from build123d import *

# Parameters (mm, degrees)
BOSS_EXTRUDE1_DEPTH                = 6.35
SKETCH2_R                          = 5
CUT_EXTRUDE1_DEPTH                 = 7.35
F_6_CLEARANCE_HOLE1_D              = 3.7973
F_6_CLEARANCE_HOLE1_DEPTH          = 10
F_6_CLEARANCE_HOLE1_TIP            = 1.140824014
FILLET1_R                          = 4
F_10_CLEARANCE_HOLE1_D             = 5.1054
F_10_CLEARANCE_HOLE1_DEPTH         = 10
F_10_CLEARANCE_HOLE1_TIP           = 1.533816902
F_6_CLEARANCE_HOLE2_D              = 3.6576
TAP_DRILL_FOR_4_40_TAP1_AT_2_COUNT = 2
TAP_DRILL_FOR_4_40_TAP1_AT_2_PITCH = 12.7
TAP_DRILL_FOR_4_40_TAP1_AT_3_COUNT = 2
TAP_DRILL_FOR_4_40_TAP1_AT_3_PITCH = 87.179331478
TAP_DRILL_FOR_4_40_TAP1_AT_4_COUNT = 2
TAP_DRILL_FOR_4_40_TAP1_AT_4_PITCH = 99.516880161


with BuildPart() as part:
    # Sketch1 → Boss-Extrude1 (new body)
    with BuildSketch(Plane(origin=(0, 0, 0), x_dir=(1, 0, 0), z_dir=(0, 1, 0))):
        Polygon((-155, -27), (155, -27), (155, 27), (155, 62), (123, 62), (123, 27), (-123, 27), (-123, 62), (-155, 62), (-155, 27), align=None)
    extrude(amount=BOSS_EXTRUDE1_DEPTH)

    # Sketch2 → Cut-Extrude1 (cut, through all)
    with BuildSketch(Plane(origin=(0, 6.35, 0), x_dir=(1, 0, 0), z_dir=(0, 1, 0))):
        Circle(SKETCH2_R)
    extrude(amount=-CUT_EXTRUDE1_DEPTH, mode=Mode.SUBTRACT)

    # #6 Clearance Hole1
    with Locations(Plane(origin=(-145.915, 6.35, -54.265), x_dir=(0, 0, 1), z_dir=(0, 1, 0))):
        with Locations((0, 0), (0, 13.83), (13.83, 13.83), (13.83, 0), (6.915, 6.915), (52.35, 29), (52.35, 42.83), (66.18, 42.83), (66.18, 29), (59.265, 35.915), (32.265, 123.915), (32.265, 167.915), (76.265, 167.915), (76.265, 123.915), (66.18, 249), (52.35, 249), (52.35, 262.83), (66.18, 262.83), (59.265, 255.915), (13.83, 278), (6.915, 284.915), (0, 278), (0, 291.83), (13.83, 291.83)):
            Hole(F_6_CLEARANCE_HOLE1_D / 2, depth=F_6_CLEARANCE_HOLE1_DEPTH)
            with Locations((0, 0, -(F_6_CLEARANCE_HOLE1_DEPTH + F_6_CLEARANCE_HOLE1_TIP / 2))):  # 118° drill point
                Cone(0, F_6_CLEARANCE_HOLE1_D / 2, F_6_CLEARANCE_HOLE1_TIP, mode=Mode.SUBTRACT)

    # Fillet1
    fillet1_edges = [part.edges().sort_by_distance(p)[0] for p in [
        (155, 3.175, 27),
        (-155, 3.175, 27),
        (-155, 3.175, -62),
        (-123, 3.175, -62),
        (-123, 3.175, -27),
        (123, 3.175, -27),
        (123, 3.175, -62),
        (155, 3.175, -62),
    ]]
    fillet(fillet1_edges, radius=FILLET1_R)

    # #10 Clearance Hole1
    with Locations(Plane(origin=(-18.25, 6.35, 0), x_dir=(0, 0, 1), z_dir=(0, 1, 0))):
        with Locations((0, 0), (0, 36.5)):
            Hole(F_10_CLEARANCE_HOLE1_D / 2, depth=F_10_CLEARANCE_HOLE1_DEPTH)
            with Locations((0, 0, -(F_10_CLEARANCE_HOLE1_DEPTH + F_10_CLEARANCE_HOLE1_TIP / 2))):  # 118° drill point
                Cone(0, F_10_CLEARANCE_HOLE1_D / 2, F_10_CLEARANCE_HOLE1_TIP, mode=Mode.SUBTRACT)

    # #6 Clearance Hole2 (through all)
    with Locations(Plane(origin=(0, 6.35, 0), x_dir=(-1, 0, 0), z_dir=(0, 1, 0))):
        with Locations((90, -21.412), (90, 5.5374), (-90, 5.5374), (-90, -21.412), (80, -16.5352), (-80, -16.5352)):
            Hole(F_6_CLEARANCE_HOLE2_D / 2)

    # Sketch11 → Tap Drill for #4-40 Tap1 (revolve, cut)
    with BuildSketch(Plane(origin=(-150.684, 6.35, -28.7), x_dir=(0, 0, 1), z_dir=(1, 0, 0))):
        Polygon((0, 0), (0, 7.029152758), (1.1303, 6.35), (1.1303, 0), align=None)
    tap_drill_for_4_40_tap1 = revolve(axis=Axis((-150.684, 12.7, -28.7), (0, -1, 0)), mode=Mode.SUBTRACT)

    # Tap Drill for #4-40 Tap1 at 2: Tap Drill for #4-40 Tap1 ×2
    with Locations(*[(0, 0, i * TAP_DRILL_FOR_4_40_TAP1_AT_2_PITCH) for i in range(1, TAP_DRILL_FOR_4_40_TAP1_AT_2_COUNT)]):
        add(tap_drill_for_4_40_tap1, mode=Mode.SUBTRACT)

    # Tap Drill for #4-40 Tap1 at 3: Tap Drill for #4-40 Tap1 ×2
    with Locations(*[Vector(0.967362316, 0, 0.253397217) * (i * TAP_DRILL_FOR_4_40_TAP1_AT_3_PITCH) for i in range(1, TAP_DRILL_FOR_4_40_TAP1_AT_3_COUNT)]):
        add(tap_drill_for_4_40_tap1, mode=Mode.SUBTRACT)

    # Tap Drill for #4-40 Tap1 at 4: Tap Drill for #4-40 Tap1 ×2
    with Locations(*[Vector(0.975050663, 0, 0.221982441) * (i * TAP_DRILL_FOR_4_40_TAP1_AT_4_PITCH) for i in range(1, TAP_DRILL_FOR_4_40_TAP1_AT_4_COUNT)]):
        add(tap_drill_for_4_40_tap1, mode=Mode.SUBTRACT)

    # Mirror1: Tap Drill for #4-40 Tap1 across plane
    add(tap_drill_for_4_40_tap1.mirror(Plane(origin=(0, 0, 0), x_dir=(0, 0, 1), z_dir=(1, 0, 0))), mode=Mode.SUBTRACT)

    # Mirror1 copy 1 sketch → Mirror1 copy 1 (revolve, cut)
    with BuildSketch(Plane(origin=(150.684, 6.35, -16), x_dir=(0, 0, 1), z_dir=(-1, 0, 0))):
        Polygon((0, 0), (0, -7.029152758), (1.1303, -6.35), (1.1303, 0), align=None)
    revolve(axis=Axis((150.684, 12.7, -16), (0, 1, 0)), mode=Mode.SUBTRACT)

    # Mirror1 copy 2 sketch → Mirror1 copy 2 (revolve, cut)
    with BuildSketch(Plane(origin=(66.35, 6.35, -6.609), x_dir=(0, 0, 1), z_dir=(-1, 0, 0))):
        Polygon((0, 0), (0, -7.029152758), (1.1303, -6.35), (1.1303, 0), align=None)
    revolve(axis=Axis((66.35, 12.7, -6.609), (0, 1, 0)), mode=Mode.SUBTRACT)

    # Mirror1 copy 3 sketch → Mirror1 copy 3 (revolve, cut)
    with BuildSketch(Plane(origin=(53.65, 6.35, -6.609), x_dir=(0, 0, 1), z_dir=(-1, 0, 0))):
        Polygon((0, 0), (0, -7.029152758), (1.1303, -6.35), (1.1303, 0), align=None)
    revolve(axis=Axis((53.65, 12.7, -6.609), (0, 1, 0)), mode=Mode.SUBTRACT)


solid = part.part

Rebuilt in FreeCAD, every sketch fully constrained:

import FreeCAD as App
import Part
import Sketcher
Q = App.Units.Quantity


def edges_at(feature, points):
    """Names of the edges that pass closest to the given points."""
    edges = feature.Shape.Edges
    near = lambda p: min(range(len(edges)), key=lambda i: edges[i].distToShape(Part.Vertex(*p))[0])
    return sorted({f"Edge{near(p) + 1}" for p in points})


def add_polygon(sketch, points):
    """Adds a closed chain of lines whose ends are joined by coincident constraints."""
    first, n = sketch.GeometryCount, len(points)
    for a, b in zip(points, points[1:] + points[:1]):
        sketch.addGeometry(Part.LineSegment(App.Vector(*a, 0), App.Vector(*b, 0)), False)
    for i in range(n):
        sketch.addConstraint(Sketcher.Constraint("Coincident", first + i, 2, first + (i + 1) % n, 1))

doc = App.newDocument("Part")
body = doc.addObject("PartDesign::Body", "Body")

# Sketch on XZ plane
sketch1 = body.newObject("Sketcher::SketchObject", "Sketch")
sketch1.AttachmentSupport = (doc.getObject("XZ_Plane"), [""])
sketch1.MapMode = "FlatFace"
add_polygon(sketch1, [(-155, 27), (155, 27), (155, -62), (123, -62), (123, -27), (-123, -27), (-123, -62), (-155, -62)])  # lines 0-7
sketch1.addConstraint([
    Sketcher.Constraint("Horizontal", 0),
    Sketcher.Constraint("Vertical", 1),
    Sketcher.Constraint("Horizontal", 2),
    Sketcher.Constraint("Vertical", 3),
    Sketcher.Constraint("Horizontal", 4),
    Sketcher.Constraint("Vertical", 5),
    Sketcher.Constraint("Horizontal", 6),
    Sketcher.Constraint("Vertical", 7),
    Sketcher.Constraint("Symmetric", 2, 2, 5, 2, -2),
    Sketcher.Constraint("Equal", 2, 6),
    Sketcher.Constraint("DistanceX", 0, 1, 0, 2, 310.0),
    Sketcher.Constraint("DistanceX", 2, 2, 2, 1, 32.0),
    Sketcher.Constraint("DistanceY", 1, 2, 1, 1, 89.0),
    Sketcher.Constraint("DistanceY", 3, 1, 3, 2, 35.0),
    Sketcher.Constraint("DistanceY", -1, 1, 0, 2, 27.0),
])
pad1 = body.newObject("PartDesign::Pad", "Pad")
pad1.Profile = sketch1
pad1.Length = 6.35
pad1.Reversed = True

# Sketch on XZ plane
sketch2 = body.newObject("Sketcher::SketchObject", "Sketch001")
sketch2.AttachmentSupport = (doc.getObject("XZ_Plane"), [""])
sketch2.MapMode = "FlatFace"
sketch2.AttachmentOffset = App.Placement(App.Vector(0, 0, -6.35), App.Rotation())
sketch2.addGeometry(Part.Circle(App.Vector(0, 0, 0), App.Vector(0, 0, 1), 5), False)
sketch2.addConstraint([
    Sketcher.Constraint("Coincident", 0, 3, -1, 1),
    Sketcher.Constraint("Diameter", 0, 10.0),
])
pocket1 = body.newObject("PartDesign::Pocket", "Pocket")
pocket1.Profile = sketch2
pocket1.Type = "ThroughAll"
pocket1.Reversed = True

# Sketch on XZ plane
sketch3 = body.newObject("Sketcher::SketchObject", "Sketch002")
sketch3.AttachmentSupport = (doc.getObject("XZ_Plane"), [""])
sketch3.MapMode = "FlatFace"
sketch3.AttachmentOffset = App.Placement(App.Vector(0, 0, -6.35), App.Rotation())
sketch3.addGeometry([
    Part.Circle(App.Vector(-145.915, -54.265, 0), App.Vector(0, 0, 1), 1.89865),  # 0
    Part.Circle(App.Vector(-132.085, -54.265, 0), App.Vector(0, 0, 1), 1.89865),  # 1
    Part.Circle(App.Vector(-132.085, -40.435, 0), App.Vector(0, 0, 1), 1.89865),  # 2
    Part.Circle(App.Vector(-145.915, -40.435, 0), App.Vector(0, 0, 1), 1.89865),  # 3
    Part.Circle(App.Vector(-139, -47.35, 0), App.Vector(0, 0, 1), 1.89865),  # 4
    Part.Circle(App.Vector(-116.915, -1.915, 0), App.Vector(0, 0, 1), 1.89865),  # 5
    Part.Circle(App.Vector(-103.085, -1.915, 0), App.Vector(0, 0, 1), 1.89865),  # 6
    Part.Circle(App.Vector(-103.085, 11.915, 0), App.Vector(0, 0, 1), 1.89865),  # 7
    Part.Circle(App.Vector(-116.915, 11.915, 0), App.Vector(0, 0, 1), 1.89865),  # 8
    Part.Circle(App.Vector(-110, 5, 0), App.Vector(0, 0, 1), 1.89865),  # 9
    Part.Circle(App.Vector(-22, -22, 0), App.Vector(0, 0, 1), 1.89865),  # 10
    Part.Circle(App.Vector(22, -22, 0), App.Vector(0, 0, 1), 1.89865),  # 11
    Part.Circle(App.Vector(22, 22, 0), App.Vector(0, 0, 1), 1.89865),  # 12
    Part.Circle(App.Vector(-22, 22, 0), App.Vector(0, 0, 1), 1.89865),  # 13
    Part.Circle(App.Vector(103.085, 11.915, 0), App.Vector(0, 0, 1), 1.89865),  # 14
    Part.Circle(App.Vector(103.085, -1.915, 0), App.Vector(0, 0, 1), 1.89865),  # 15
    Part.Circle(App.Vector(116.915, -1.915, 0), App.Vector(0, 0, 1), 1.89865),  # 16
    Part.Circle(App.Vector(116.915, 11.915, 0), App.Vector(0, 0, 1), 1.89865),  # 17
    Part.Circle(App.Vector(110, 5, 0), App.Vector(0, 0, 1), 1.89865),  # 18
    Part.Circle(App.Vector(132.085, -40.435, 0), App.Vector(0, 0, 1), 1.89865),  # 19
    Part.Circle(App.Vector(139, -47.35, 0), App.Vector(0, 0, 1), 1.89865),  # 20
    Part.Circle(App.Vector(132.085, -54.265, 0), App.Vector(0, 0, 1), 1.89865),  # 21
    Part.Circle(App.Vector(145.915, -54.265, 0), App.Vector(0, 0, 1), 1.89865),  # 22
    Part.Circle(App.Vector(145.915, -40.435, 0), App.Vector(0, 0, 1), 1.89865),  # 23
], False)
sketch3.addConstraint([
    Sketcher.Constraint("Equal", 0, 1),
    Sketcher.Constraint("Equal", 1, 2),
    Sketcher.Constraint("Equal", 2, 3),
    Sketcher.Constraint("Equal", 3, 4),
    Sketcher.Constraint("Equal", 4, 5),
    Sketcher.Constraint("Equal", 5, 6),
    Sketcher.Constraint("Equal", 6, 7),
    Sketcher.Constraint("Equal", 7, 8),
    Sketcher.Constraint("Equal", 8, 9),
    Sketcher.Constraint("Equal", 9, 10),
    Sketcher.Constraint("Equal", 10, 11),
    Sketcher.Constraint("Equal", 11, 12),
    Sketcher.Constraint("Equal", 12, 13),
    Sketcher.Constraint("Equal", 13, 14),
    Sketcher.Constraint("Equal", 14, 15),
    Sketcher.Constraint("Equal", 15, 16),
    Sketcher.Constraint("Equal", 16, 17),
    Sketcher.Constraint("Equal", 17, 18),
    Sketcher.Constraint("Equal", 18, 19),
    Sketcher.Constraint("Equal", 19, 20),
    Sketcher.Constraint("Equal", 20, 21),
    Sketcher.Constraint("Equal", 21, 22),
    Sketcher.Constraint("Equal", 22, 23),
    Sketcher.Constraint("Symmetric", 10, 3, 12, 3, -1, 1),
    Sketcher.Constraint("Symmetric", 11, 3, 13, 3, -1, 1),
    Sketcher.Constraint("Symmetric", 10, 3, 11, 3, -2),
    Sketcher.Constraint("Symmetric", 7, 3, 14, 3, -2),
    Sketcher.Constraint("Symmetric", 6, 3, 15, 3, -2),
    Sketcher.Constraint("Symmetric", 5, 3, 16, 3, -2),
    Sketcher.Constraint("Symmetric", 8, 3, 17, 3, -2),
    Sketcher.Constraint("Symmetric", 9, 3, 18, 3, -2),
    Sketcher.Constraint("Symmetric", 2, 3, 19, 3, -2),
    Sketcher.Constraint("Symmetric", 4, 3, 20, 3, -2),
    Sketcher.Constraint("Symmetric", 1, 3, 21, 3, -2),
    Sketcher.Constraint("Symmetric", 0, 3, 22, 3, -2),
    Sketcher.Constraint("Symmetric", 3, 3, 23, 3, -2),
    Sketcher.Constraint("Horizontal", 0, 3, 1, 3),
    Sketcher.Constraint("Horizontal", 2, 3, 3, 3),
    Sketcher.Constraint("Horizontal", 5, 3, 6, 3),
    Sketcher.Constraint("Horizontal", 7, 3, 8, 3),
    Sketcher.Constraint("Vertical", 1, 3, 2, 3),
    Sketcher.Constraint("Vertical", 0, 3, 3, 3),
    Sketcher.Constraint("Vertical", 6, 3, 7, 3),
    Sketcher.Constraint("Vertical", 5, 3, 8, 3),
    Sketcher.Constraint("DistanceX", 4, 3, -1, 1, 139.0),
    Sketcher.Constraint("DistanceX", 9, 3, -1, 1, 110.0),
    Sketcher.Constraint("DistanceY", -1, 1, 9, 3, 5.0),
    Sketcher.Constraint("DistanceX", 10, 3, -1, 1, 22.0),
    Sketcher.Constraint("DistanceY", 10, 3, -1, 1, 22.0),
    Sketcher.Constraint("DistanceX", 3, 3, 5, 3, 29.0),
    Sketcher.Constraint("DistanceX", 2, 3, 6, 3, 29.0),
    Sketcher.Constraint("Diameter", 0, 3.7973),
    Sketcher.Constraint("DistanceY", 4, 3, -1, 1, 47.35),
    Sketcher.Constraint("DistanceX", 0, 3, 1, 3, 13.83),
    Sketcher.Constraint("DistanceY", 1, 3, 2, 3, 13.83),
    Sketcher.Constraint("DistanceY", 2, 3, 5, 3, 38.52),
    Sketcher.Constraint("DistanceY", 6, 3, 7, 3, 13.83),
    Sketcher.Constraint("DistanceX", 7, 3, 14, 3, 206.17),
    Sketcher.Constraint("DistanceY", 0, 3, -1, 1, 54.265),
])
doc.recompute()
hole = body.newObject("PartDesign::Hole", "Hole")
hole.Profile = sketch3
hole.ThreadType = "None"
hole.Diameter = 3.7973
hole.DepthType = "Dimension"
hole.Depth = 10
hole.DrillPoint = "Angled"
hole.DrillPointAngle = 118
hole.Reversed = True
doc.recompute()

fillet = body.newObject("PartDesign::Fillet", "Fillet")
fillet.Base = (hole, edges_at(hole, [
    (155, 3.175, 27),
    (-155, 3.175, 27),
    (-155, 3.175, -62),
    (-123, 3.175, -62),
    (-123, 3.175, -27),
    (123, 3.175, -27),
    (123, 3.175, -62),
    (155, 3.175, -62),
]))
fillet.Radius = 4

# Sketch on XZ plane
sketch4 = body.newObject("Sketcher::SketchObject", "Sketch003")
sketch4.AttachmentSupport = (doc.getObject("XZ_Plane"), [""])
sketch4.MapMode = "FlatFace"
sketch4.AttachmentOffset = App.Placement(App.Vector(0, 0, -6.35), App.Rotation())
sketch4.addGeometry([
    Part.Circle(App.Vector(-18.25, 0, 0), App.Vector(0, 0, 1), 2.5527),
    Part.Circle(App.Vector(18.25, 0, 0), App.Vector(0, 0, 1), 2.5527),
], False)
sketch4.addConstraint([
    Sketcher.Constraint("Equal", 0, 1),
    Sketcher.Constraint("Symmetric", 0, 3, 1, 3, -1, 1),
    Sketcher.Constraint("PointOnObject", 0, 3, -1),
    Sketcher.Constraint("Diameter", 0, 5.1054),
    Sketcher.Constraint("DistanceX", 0, 3, 1, 3, 36.5),
])
doc.recompute()
hole2 = body.newObject("PartDesign::Hole", "Hole001")
hole2.Profile = sketch4
hole2.ThreadType = "None"
hole2.Diameter = 5.1054
hole2.DepthType = "Dimension"
hole2.Depth = 10
hole2.DrillPoint = "Angled"
hole2.DrillPointAngle = 118
hole2.Reversed = True

# Sketch on XZ plane
sketch5 = body.newObject("Sketcher::SketchObject", "Sketch004")
sketch5.AttachmentSupport = (doc.getObject("XZ_Plane"), [""])
sketch5.MapMode = "FlatFace"
sketch5.AttachmentOffset = App.Placement(App.Vector(0, 0, -6.35), App.Rotation())
sketch5.addGeometry([
    Part.Circle(App.Vector(-90, -21.412, 0), App.Vector(0, 0, 1), 1.8288),  # 0
    Part.Circle(App.Vector(-90, 5.5374, 0), App.Vector(0, 0, 1), 1.8288),  # 1
    Part.Circle(App.Vector(90, 5.5374, 0), App.Vector(0, 0, 1), 1.8288),  # 2
    Part.Circle(App.Vector(90, -21.412, 0), App.Vector(0, 0, 1), 1.8288),  # 3
    Part.Circle(App.Vector(-80, -16.5352, 0), App.Vector(0, 0, 1), 1.8288),  # 4
    Part.Circle(App.Vector(80, -16.5352, 0), App.Vector(0, 0, 1), 1.8288),  # 5
], False)
sketch5.addConstraint([
    Sketcher.Constraint("Equal", 0, 1),
    Sketcher.Constraint("Equal", 1, 2),
    Sketcher.Constraint("Equal", 2, 3),
    Sketcher.Constraint("Equal", 3, 4),
    Sketcher.Constraint("Equal", 4, 5),
    Sketcher.Constraint("Symmetric", 1, 3, 2, 3, -2),
    Sketcher.Constraint("Symmetric", 0, 3, 3, 3, -2),
    Sketcher.Constraint("Symmetric", 4, 3, 5, 3, -2),
    Sketcher.Constraint("Vertical", 0, 3, 1, 3),
    Sketcher.Constraint("DistanceX", 0, 3, -1, 1, 90.0),
    Sketcher.Constraint("DistanceX", 4, 3, -1, 1, 80.0),
    Sketcher.Constraint("Diameter", 0, 3.6576),
    Sketcher.Constraint("DistanceY", 0, 3, -1, 1, 21.412),
    Sketcher.Constraint("DistanceY", -1, 1, 1, 3, 5.5374),
    Sketcher.Constraint("DistanceY", 4, 3, -1, 1, 16.5352),
])
doc.recompute()
hole3 = body.newObject("PartDesign::Hole", "Hole002")
hole3.Profile = sketch5
hole3.ThreadType = "None"
hole3.Diameter = 3.6576
hole3.DepthType = "ThroughAll"
hole3.Reversed = True

# Sketch on YZ plane
sketch6 = body.newObject("Sketcher::SketchObject", "Sketch005")
sketch6.AttachmentSupport = (doc.getObject("YZ_Plane"), [""])
sketch6.MapMode = "FlatFace"
sketch6.AttachmentOffset = App.Placement(App.Vector(0, 0, -150.684), App.Rotation())
add_polygon(sketch6, [(-0.679153, -28.7), (6.35, -28.7), (6.35, -27.5697), (0, -27.5697)])  # lines 0-3
sketch6.addGeometry(Part.LineSegment(App.Vector(6.35, -28.7, 0), App.Vector(-0.679153, -28.7, 0)), True)  # axis
sketch6.addConstraint([
    Sketcher.Constraint("Horizontal", 0),
    Sketcher.Constraint("Vertical", 1),
    Sketcher.Constraint("Horizontal", 2),
    Sketcher.Constraint("Horizontal", 4),
    Sketcher.Constraint("Coincident", 4, 1, 0, 2),
    Sketcher.Constraint("PointOnObject", 2, 2, -2),
    Sketcher.Constraint("Equal", 0, 4),
    Sketcher.Constraint("Angle", 3, Q("-121 deg")),
    Sketcher.Constraint("DistanceX", 2, 2, 2, 1, 6.35),
    Sketcher.Constraint("DistanceY", 0, 2, -1, 1, 28.7),
    Sketcher.Constraint("DistanceY", 1, 1, 1, 2, 1.1303),
])
groove = body.newObject("PartDesign::Groove", "Groove")
groove.Profile = sketch6
groove.ReferenceAxis = (sketch6, ["Axis0"])
groove.Angle = 360
doc.recompute()

linearpattern = body.newObject("PartDesign::LinearPattern", "LinearPattern")
linearpattern.Originals = [groove]
linearpattern.Direction = (doc.getObject("Z_Axis"), [""])
linearpattern.Mode = "offset"
linearpattern.Offset = 12.7
linearpattern.Occurrences = 2
body.Tip = linearpattern
doc.recompute()

datumline = body.newObject("PartDesign::Line", "DatumLine")
datumline.Placement = App.Placement(App.Vector(0, 0, 0), App.Rotation(App.Vector(0, 0, 1), App.Vector(0.967362316, 0, 0.253397217)))
linearpattern2 = body.newObject("PartDesign::LinearPattern", "LinearPattern001")
linearpattern2.Originals = [groove]
linearpattern2.Direction = (datumline, [""])
linearpattern2.Mode = "offset"
linearpattern2.Offset = 87.179331
linearpattern2.Occurrences = 2
body.Tip = linearpattern2
doc.recompute()

datumline2 = body.newObject("PartDesign::Line", "DatumLine001")
datumline2.Placement = App.Placement(App.Vector(0, 0, 0), App.Rotation(App.Vector(0, 0, 1), App.Vector(0.975050663, 0, 0.221982441)))
linearpattern3 = body.newObject("PartDesign::LinearPattern", "LinearPattern002")
linearpattern3.Originals = [groove]
linearpattern3.Direction = (datumline2, [""])
linearpattern3.Mode = "offset"
linearpattern3.Offset = 99.51688
linearpattern3.Occurrences = 2
body.Tip = linearpattern3
doc.recompute()

mirrored = body.newObject("PartDesign::Mirrored", "Mirrored")
mirrored.Originals = [groove]
mirrored.MirrorPlane = (doc.getObject("YZ_Plane"), [""])
body.Tip = mirrored

# Sketch on YZ plane
sketch7 = body.newObject("Sketcher::SketchObject", "Sketch006")
sketch7.AttachmentSupport = (doc.getObject("YZ_Plane"), [""])
sketch7.MapMode = "FlatFace"
sketch7.AttachmentOffset = App.Placement(App.Vector(0, 0, 150.684), App.Rotation())
add_polygon(sketch7, [(6.35, -16), (-0.679153, -16), (0, -14.8697), (6.35, -14.8697)])  # lines 0-3
sketch7.addGeometry(Part.LineSegment(App.Vector(-0.679153, -16, 0), App.Vector(6.35, -16, 0)), True)  # axis
sketch7.addConstraint([
    Sketcher.Constraint("Horizontal", 0),
    Sketcher.Constraint("Horizontal", 2),
    Sketcher.Constraint("Vertical", 3),
    Sketcher.Constraint("Horizontal", 4),
    Sketcher.Constraint("Coincident", 4, 1, 0, 2),
    Sketcher.Constraint("PointOnObject", 1, 2, -2),
    Sketcher.Constraint("Vertical", 2, 2, 4, 2),
    Sketcher.Constraint("Angle", 1, Q("59 deg")),
    Sketcher.Constraint("DistanceY", 0, 2, -1, 1, 16.0),
    Sketcher.Constraint("DistanceX", 2, 1, 2, 2, 6.35),
    Sketcher.Constraint("DistanceY", 3, 2, 3, 1, 1.1303),
])
groove2 = body.newObject("PartDesign::Groove", "Groove001")
groove2.Profile = sketch7
groove2.ReferenceAxis = (sketch7, ["Axis0"])
groove2.Angle = 360

# Sketch on YZ plane
sketch8 = body.newObject("Sketcher::SketchObject", "Sketch007")
sketch8.AttachmentSupport = (doc.getObject("YZ_Plane"), [""])
sketch8.MapMode = "FlatFace"
sketch8.AttachmentOffset = App.Placement(App.Vector(0, 0, 66.35), App.Rotation())
add_polygon(sketch8, [(6.35, -6.609), (-0.679153, -6.609), (0, -5.4787), (6.35, -5.4787)])  # lines 0-3
sketch8.addGeometry(Part.LineSegment(App.Vector(-0.679153, -6.609, 0), App.Vector(6.35, -6.609, 0)), True)  # axis
sketch8.addConstraint([
    Sketcher.Constraint("Horizontal", 0),
    Sketcher.Constraint("Horizontal", 2),
    Sketcher.Constraint("Vertical", 3),
    Sketcher.Constraint("Horizontal", 4),
    Sketcher.Constraint("Coincident", 4, 1, 0, 2),
    Sketcher.Constraint("PointOnObject", 1, 2, -2),
    Sketcher.Constraint("Vertical", 2, 2, 4, 2),
    Sketcher.Constraint("Angle", 1, Q("59 deg")),
    Sketcher.Constraint("DistanceX", 2, 1, 2, 2, 6.35),
    Sketcher.Constraint("DistanceY", 3, 2, 3, 1, 1.1303),
    Sketcher.Constraint("DistanceY", 0, 2, -1, 1, 6.609),
])
groove3 = body.newObject("PartDesign::Groove", "Groove002")
groove3.Profile = sketch8
groove3.ReferenceAxis = (sketch8, ["Axis0"])
groove3.Angle = 360

# Sketch on YZ plane
sketch9 = body.newObject("Sketcher::SketchObject", "Sketch008")
sketch9.AttachmentSupport = (doc.getObject("YZ_Plane"), [""])
sketch9.MapMode = "FlatFace"
sketch9.AttachmentOffset = App.Placement(App.Vector(0, 0, 53.65), App.Rotation())
add_polygon(sketch9, [(6.35, -6.609), (-0.679153, -6.609), (0, -5.4787), (6.35, -5.4787)])  # lines 0-3
sketch9.addGeometry(Part.LineSegment(App.Vector(-0.679153, -6.609, 0), App.Vector(6.35, -6.609, 0)), True)  # axis
sketch9.addConstraint([
    Sketcher.Constraint("Horizontal", 0),
    Sketcher.Constraint("Horizontal", 2),
    Sketcher.Constraint("Vertical", 3),
    Sketcher.Constraint("Horizontal", 4),
    Sketcher.Constraint("Coincident", 4, 1, 0, 2),
    Sketcher.Constraint("PointOnObject", 1, 2, -2),
    Sketcher.Constraint("Vertical", 2, 2, 4, 2),
    Sketcher.Constraint("Angle", 1, Q("59 deg")),
    Sketcher.Constraint("DistanceX", 2, 1, 2, 2, 6.35),
    Sketcher.Constraint("DistanceY", 3, 2, 3, 1, 1.1303),
    Sketcher.Constraint("DistanceY", 0, 2, -1, 1, 6.609),
])
groove4 = body.newObject("PartDesign::Groove", "Groove003")
groove4.Profile = sketch9
groove4.ReferenceAxis = (sketch9, ["Axis0"])
groove4.Angle = 360

doc.recompute()
